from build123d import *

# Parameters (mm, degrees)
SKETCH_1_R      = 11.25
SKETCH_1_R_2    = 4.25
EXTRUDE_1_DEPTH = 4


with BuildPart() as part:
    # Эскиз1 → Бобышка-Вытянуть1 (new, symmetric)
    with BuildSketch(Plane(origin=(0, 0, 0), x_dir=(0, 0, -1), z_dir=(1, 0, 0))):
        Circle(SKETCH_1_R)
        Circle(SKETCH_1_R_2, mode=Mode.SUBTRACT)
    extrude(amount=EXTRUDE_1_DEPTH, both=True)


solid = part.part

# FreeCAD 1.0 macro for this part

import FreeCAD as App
import Part
import Sketcher

doc = App.newDocument("Part")
body = doc.addObject("PartDesign::Body", "Body")

# Sketch on YZ plane
sketch1 = doc.addObject("Sketcher::SketchObject", "Sketch")
body.addObject(sketch1)
sketch1.AttachmentSupport = (doc.YZ_Plane, [""])
sketch1.MapMode = "FlatFace"
sketch1.addGeometry([
    Part.Circle(App.Vector(0, 0, 0), App.Vector(0, 0, 1), 11.2),
    Part.Circle(App.Vector(0, 0, 0), App.Vector(0, 0, 1), 4.2),
], False)
sketch1.addConstraint([
    Sketcher.Constraint("Coincident", 0, 3, -1, 1),
    Sketcher.Constraint("Coincident", 1, 3, -1, 1),
    Sketcher.Constraint("Diameter", 0, 22.5),
    Sketcher.Constraint("Diameter", 1, 8.5),
])
pad1 = doc.addObject("PartDesign::Pad", "Pad")
body.addObject(pad1)
pad1.Profile = sketch1
pad1.Length = 8
pad1.Midplane = True

doc.recompute()
